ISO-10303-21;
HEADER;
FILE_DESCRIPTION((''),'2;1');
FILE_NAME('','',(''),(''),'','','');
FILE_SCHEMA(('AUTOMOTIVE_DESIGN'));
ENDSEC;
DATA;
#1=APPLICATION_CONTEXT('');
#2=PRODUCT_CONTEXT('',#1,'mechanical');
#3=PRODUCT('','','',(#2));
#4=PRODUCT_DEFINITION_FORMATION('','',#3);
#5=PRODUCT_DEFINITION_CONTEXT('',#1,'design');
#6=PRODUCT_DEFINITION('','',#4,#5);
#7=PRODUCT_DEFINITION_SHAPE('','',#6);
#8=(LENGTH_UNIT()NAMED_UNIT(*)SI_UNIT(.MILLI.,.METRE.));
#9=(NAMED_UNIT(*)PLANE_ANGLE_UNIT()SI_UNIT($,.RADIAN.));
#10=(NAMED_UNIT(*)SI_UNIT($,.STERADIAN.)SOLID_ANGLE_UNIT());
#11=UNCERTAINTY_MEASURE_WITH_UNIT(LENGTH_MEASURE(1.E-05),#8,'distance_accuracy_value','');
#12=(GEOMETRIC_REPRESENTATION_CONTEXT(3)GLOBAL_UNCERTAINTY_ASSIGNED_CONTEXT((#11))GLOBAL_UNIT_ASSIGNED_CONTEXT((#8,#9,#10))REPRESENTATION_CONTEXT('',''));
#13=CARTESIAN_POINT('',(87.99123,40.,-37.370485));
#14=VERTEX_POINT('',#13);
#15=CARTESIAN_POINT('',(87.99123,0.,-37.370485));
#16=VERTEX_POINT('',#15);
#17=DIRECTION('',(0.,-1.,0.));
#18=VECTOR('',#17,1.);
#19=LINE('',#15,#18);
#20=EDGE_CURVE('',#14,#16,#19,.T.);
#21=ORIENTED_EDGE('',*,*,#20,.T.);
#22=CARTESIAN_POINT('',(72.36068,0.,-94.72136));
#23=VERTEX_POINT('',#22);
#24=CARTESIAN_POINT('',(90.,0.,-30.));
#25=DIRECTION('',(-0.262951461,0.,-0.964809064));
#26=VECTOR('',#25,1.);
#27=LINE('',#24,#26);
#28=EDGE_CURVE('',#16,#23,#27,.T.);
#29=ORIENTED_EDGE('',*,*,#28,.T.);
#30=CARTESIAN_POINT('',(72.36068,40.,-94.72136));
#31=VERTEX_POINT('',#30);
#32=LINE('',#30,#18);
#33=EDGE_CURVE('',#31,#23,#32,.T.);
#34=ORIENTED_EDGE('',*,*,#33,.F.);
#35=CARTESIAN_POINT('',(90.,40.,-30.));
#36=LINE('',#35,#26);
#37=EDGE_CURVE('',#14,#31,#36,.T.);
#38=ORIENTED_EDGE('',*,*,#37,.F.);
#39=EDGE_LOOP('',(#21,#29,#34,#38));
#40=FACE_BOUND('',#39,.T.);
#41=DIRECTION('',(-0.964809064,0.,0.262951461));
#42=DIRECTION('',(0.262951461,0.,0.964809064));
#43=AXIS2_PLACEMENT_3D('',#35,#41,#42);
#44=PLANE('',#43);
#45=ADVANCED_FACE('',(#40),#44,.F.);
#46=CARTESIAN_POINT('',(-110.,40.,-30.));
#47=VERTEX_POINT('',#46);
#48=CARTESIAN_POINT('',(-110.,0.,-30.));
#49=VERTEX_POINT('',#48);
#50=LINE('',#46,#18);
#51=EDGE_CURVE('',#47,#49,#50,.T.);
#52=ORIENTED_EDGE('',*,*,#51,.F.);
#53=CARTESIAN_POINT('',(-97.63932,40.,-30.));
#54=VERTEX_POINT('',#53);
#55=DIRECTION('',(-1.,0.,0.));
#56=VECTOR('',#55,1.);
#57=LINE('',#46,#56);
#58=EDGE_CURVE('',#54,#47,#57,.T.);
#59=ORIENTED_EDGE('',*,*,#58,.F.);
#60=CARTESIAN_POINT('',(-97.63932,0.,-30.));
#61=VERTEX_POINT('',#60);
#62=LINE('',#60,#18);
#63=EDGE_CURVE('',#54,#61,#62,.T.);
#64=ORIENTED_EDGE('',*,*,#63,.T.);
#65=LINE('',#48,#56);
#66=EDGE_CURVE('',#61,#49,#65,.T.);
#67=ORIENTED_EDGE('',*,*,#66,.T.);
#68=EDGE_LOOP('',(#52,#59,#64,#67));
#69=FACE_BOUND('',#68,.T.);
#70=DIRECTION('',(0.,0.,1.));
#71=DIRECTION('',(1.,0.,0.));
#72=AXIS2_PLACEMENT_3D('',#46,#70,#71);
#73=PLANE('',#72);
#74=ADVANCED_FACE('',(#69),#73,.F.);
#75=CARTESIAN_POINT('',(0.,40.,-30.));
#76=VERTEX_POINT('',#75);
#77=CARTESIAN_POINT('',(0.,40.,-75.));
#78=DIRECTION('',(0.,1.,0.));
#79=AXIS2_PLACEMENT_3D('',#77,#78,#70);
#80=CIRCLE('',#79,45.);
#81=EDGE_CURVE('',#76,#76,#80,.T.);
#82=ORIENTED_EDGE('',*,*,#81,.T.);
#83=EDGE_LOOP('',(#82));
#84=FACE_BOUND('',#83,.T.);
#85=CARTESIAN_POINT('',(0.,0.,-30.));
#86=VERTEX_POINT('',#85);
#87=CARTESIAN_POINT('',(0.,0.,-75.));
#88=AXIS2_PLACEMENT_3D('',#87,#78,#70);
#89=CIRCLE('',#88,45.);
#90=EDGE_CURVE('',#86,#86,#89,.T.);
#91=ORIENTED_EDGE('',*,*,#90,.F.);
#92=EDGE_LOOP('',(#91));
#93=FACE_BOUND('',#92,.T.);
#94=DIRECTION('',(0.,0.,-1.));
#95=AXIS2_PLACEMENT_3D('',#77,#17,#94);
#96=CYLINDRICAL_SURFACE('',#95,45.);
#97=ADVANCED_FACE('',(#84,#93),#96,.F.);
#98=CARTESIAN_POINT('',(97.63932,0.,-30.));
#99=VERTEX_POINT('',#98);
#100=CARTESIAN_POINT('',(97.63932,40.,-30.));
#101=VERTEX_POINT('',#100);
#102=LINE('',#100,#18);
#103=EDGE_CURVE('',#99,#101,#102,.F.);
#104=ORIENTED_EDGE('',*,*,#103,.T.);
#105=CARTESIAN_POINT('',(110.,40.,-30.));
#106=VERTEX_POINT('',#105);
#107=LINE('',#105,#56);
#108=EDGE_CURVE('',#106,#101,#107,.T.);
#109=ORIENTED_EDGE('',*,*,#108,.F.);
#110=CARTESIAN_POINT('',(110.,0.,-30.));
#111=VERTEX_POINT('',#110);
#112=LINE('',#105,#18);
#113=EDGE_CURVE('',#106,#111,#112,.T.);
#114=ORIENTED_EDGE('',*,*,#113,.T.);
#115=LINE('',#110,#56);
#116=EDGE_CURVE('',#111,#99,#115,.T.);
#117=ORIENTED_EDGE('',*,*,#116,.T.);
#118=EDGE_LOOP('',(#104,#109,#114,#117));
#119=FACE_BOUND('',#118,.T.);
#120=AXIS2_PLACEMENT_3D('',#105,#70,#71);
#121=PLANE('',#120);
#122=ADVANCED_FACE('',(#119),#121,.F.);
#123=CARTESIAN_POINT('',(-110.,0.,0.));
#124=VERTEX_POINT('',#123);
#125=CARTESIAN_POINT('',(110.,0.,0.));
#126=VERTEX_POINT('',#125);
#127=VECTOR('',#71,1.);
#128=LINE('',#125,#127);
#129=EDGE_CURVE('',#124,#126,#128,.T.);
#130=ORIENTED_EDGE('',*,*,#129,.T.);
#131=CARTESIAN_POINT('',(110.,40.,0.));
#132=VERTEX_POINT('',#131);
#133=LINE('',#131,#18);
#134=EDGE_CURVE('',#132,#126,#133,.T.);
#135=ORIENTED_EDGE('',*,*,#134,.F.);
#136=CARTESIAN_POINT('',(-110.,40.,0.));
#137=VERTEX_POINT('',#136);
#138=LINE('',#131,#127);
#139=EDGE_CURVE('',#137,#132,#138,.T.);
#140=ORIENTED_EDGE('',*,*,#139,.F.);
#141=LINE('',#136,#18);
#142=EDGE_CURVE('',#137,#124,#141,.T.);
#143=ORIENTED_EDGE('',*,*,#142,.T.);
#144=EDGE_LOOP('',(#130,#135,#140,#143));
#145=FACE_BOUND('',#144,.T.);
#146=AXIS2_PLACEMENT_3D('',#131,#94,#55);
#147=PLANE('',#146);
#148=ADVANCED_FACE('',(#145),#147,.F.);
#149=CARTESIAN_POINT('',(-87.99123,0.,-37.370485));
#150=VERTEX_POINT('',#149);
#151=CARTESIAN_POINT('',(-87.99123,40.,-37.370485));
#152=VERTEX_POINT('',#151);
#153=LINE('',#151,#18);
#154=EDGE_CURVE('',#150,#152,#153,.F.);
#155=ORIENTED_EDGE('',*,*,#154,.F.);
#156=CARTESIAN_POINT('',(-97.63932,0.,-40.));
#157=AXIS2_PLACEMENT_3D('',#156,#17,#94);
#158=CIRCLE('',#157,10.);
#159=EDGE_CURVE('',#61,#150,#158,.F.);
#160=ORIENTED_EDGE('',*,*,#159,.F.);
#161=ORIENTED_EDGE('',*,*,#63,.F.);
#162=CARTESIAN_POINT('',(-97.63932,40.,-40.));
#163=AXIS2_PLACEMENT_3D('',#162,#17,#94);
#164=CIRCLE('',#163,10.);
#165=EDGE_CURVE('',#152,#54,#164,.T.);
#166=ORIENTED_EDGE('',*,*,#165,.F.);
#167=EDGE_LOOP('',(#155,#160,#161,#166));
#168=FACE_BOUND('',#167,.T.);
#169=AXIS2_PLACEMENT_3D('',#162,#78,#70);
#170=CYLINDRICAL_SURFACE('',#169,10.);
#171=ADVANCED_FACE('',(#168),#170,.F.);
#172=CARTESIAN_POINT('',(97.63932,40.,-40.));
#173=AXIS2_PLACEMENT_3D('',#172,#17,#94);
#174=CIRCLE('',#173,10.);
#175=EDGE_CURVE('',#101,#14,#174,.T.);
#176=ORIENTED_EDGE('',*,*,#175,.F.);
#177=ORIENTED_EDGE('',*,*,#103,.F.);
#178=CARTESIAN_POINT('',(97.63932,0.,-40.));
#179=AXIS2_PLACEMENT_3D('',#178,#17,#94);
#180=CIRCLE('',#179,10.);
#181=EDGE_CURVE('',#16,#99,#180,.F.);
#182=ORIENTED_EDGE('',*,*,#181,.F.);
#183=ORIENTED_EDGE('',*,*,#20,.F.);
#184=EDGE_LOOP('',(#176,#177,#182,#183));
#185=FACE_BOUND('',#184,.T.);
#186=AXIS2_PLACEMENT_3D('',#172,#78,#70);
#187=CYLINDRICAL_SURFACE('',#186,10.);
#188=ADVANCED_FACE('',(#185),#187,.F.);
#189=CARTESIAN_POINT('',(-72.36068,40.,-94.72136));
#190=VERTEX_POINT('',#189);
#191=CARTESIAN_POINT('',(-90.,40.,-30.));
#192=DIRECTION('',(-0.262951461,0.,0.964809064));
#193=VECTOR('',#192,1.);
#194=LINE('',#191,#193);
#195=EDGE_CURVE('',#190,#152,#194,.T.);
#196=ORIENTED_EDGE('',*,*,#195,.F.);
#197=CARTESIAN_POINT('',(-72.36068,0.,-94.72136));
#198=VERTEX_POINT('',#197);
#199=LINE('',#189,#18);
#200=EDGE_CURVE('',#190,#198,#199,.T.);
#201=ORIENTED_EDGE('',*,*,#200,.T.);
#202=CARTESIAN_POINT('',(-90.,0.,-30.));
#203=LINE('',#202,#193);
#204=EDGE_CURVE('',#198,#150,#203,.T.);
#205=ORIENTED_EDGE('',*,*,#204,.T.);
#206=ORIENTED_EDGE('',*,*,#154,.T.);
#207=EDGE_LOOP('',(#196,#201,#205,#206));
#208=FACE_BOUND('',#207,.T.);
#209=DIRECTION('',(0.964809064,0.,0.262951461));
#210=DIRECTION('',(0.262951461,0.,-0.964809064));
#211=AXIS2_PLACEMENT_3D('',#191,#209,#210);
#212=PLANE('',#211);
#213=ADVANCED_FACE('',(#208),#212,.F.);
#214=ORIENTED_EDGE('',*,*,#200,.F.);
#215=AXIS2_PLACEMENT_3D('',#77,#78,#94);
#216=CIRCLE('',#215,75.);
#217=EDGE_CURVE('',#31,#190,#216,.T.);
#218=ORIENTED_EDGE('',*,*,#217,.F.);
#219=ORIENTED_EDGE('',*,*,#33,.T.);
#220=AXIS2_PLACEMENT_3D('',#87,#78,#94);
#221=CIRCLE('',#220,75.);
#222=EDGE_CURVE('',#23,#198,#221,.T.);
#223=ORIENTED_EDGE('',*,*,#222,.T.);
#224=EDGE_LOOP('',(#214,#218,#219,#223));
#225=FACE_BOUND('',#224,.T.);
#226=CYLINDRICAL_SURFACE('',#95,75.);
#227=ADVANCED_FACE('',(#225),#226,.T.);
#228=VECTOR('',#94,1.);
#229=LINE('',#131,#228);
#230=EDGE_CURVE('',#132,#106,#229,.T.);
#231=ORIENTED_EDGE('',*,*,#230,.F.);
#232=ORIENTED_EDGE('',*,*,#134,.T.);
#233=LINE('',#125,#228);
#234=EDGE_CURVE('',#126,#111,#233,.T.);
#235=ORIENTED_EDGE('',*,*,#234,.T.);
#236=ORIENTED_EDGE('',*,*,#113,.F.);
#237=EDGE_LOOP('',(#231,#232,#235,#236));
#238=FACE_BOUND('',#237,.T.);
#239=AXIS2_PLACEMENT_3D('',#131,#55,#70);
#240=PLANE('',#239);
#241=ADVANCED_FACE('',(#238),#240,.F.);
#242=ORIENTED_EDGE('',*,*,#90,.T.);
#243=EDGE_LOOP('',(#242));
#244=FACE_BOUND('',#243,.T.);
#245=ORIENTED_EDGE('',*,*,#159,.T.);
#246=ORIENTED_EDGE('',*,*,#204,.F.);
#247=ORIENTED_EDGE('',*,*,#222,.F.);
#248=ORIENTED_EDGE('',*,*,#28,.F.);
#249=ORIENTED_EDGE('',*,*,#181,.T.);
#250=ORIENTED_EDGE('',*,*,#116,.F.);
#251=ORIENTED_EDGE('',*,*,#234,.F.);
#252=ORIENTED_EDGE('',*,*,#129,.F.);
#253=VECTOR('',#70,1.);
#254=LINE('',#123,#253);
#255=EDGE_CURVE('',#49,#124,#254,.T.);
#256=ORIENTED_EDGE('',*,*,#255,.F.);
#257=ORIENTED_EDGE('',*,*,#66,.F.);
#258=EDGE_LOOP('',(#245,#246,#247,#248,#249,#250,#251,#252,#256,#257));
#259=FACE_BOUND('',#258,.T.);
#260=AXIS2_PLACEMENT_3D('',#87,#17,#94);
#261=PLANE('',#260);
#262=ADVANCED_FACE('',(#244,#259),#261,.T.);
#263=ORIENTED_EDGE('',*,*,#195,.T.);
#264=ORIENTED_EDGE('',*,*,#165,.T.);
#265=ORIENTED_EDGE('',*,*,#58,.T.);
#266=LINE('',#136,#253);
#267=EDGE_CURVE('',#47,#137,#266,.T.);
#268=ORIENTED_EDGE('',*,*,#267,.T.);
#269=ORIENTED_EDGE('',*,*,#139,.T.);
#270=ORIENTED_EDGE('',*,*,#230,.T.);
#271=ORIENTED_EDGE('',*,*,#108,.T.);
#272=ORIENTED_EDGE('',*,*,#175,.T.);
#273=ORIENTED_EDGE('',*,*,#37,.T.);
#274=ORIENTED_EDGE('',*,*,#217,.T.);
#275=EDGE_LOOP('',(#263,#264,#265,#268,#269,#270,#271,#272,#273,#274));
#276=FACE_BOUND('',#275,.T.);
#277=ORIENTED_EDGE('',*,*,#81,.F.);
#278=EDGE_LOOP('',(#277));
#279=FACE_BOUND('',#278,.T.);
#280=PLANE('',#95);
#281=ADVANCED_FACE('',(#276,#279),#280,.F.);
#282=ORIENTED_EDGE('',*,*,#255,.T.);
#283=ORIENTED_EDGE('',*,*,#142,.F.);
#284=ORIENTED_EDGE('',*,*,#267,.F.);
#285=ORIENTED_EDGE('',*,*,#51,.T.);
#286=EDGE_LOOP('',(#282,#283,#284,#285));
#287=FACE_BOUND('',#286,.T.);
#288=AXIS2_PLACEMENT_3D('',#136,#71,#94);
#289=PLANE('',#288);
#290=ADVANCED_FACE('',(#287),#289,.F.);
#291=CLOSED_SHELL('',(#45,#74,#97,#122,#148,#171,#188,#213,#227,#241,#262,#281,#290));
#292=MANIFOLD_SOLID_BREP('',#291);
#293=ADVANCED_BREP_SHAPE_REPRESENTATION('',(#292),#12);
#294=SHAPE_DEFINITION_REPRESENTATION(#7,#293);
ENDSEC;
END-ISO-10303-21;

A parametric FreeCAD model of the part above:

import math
import FreeCAD as App
import Part
import Sketcher

V = App.Vector
Q = App.Units.Quantity


def edges_at(feature, points):
    """Names of the edges that pass closest to the given points."""
    edges = feature.Shape.Edges
    near = lambda p: min(range(len(edges)), key=lambda i: edges[i].distToShape(Part.Vertex(*p))[0])
    return sorted({f"Edge{near(p) + 1}" for p in points})

doc = App.newDocument("Part")
params = doc.addObject("Spreadsheet::Sheet", "Params")
for row, (alias, value) in enumerate([
    ("sketch1_diameter", "90 mm"),
    ("sketch1_radius", "75 mm"),
    ("sketch1_width", "220 mm"),
    ("sketch1_width2", "20 mm"),
    ("sketch1_height", "30 mm"),
    ("pad1_length", "40 mm"),
    ("fillet_radius", "10 mm"),
], start=1):
    params.set(f"A{row}", alias)
    params.set(f"B{row}", "=" + value)
    params.setAlias(f"B{row}", alias)

body = doc.addObject("PartDesign::Body", "Body")

# Sketch on XZ plane
sketch1 = body.newObject("Sketcher::SketchObject", "Sketch")
sketch1.AttachmentSupport = (doc.getObject("XZ_Plane"), [""])
sketch1.MapMode = "FlatFace"
sketch1.addGeometry(Part.LineSegment(V(-110, 0, 0), V(110, 0, 0)), False)
sketch1.addGeometry(Part.LineSegment(V(110, 0, 0), V(110, -30, 0)), False)
sketch1.addGeometry(Part.LineSegment(V(110, -30, 0), V(90, -30, 0)), False)
sketch1.addGeometry(Part.LineSegment(V(90, -30, 0), V(72.36068, -94.72136, 0)), False)
sketch1.addGeometry(Part.ArcOfCircle(Part.Circle(V(0, -75, 0), V(0, 0, 1), 75), math.radians(-164.754736), math.radians(-15.245264)), False)
sketch1.addGeometry(Part.LineSegment(V(-72.36068, -94.72136, 0), V(-90, -30, 0)), False)
sketch1.addGeometry(Part.LineSegment(V(-90, -30, 0), V(-110, -30, 0)), False)
sketch1.addGeometry(Part.LineSegment(V(-110, -30, 0), V(-110, 0, 0)), False)
sketch1.addGeometry(Part.Circle(V(0, -75, 0), V(0, 0, 1), 45), False)
sketch1.addConstraint(Sketcher.Constraint("Coincident", 0, 2, 1, 1))
sketch1.addConstraint(Sketcher.Constraint("Coincident", 1, 2, 2, 1))
sketch1.addConstraint(Sketcher.Constraint("Coincident", 2, 2, 3, 1))
sketch1.addConstraint(Sketcher.Constraint("Tangent", 3, 2, 4, 2))
sketch1.addConstraint(Sketcher.Constraint("Tangent", 4, 1, 5, 1))
sketch1.addConstraint(Sketcher.Constraint("Coincident", 5, 2, 6, 1))
sketch1.addConstraint(Sketcher.Constraint("Coincident", 6, 2, 7, 1))
sketch1.addConstraint(Sketcher.Constraint("Coincident", 7, 2, 0, 1))
sketch1.addConstraint(Sketcher.Constraint("Horizontal", 0))
sketch1.addConstraint(Sketcher.Constraint("Vertical", 1))
sketch1.addConstraint(Sketcher.Constraint("Horizontal", 2))
sketch1.addConstraint(Sketcher.Constraint("Horizontal", 6))
sketch1.addConstraint(Sketcher.Constraint("Vertical", 7))
sketch1.addConstraint(Sketcher.Constraint("Coincident", 8, 3, 4, 3))
sketch1.addConstraint(Sketcher.Constraint("Symmetric", 0, 2, 7, 2, -1, 1))
sketch1.addConstraint(Sketcher.Constraint("Symmetric", 3, 2, 4, 1, -2))
sketch1.addConstraint(Sketcher.Constraint("Horizontal", 2, 2, 5, 2))
sketch1.addConstraint(Sketcher.Constraint("Diameter", 8, Q("90 mm")))
sketch1.addConstraint(Sketcher.Constraint("Radius", 4, Q("75 mm")))
sketch1.addConstraint(Sketcher.Constraint("DistanceX", 0, 1, 0, 2, Q("220 mm")))
sketch1.addConstraint(Sketcher.Constraint("DistanceX", 2, 2, 2, 1, Q("20 mm")))
sketch1.addConstraint(Sketcher.Constraint("DistanceY", 1, 2, 1, 1, Q("30 mm")))
sketch1.addConstraint(Sketcher.Constraint("DistanceY", 4, 3, -1, 1, Q("75 mm")))
sketch1.setExpression("Constraints[17]", "Params.sketch1_diameter")
sketch1.setExpression("Constraints[18]", "Params.sketch1_radius")
sketch1.setExpression("Constraints[19]", "Params.sketch1_width")
sketch1.setExpression("Constraints[20]", "Params.sketch1_width2")
sketch1.setExpression("Constraints[21]", "Params.sketch1_height")
pad1 = body.newObject("PartDesign::Pad", "Pad")
pad1.Profile = sketch1
pad1.setExpression("Length", "Params.pad1_length")
pad1.Reversed = True
doc.recompute()

fillet = body.newObject("PartDesign::Fillet", "Fillet")
fillet.Base = (pad1, edges_at(pad1, [(-90, 20, -30), (90, 20, -30)]))
fillet.setExpression("Radius", "Params.fillet_radius")

doc.recompute()
